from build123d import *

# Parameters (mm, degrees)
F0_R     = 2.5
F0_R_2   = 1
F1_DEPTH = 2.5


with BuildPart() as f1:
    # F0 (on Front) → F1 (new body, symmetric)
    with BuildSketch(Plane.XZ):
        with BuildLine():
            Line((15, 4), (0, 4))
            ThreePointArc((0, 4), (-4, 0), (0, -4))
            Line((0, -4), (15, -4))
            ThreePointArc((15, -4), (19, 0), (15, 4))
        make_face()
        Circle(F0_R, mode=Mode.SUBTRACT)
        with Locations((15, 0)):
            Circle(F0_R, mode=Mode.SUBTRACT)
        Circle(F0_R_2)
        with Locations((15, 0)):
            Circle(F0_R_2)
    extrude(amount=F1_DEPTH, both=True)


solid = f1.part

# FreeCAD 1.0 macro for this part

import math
import FreeCAD as App
import Part
import Sketcher

V = App.Vector
Q = App.Units.Quantity

doc = App.newDocument("Part")
body = doc.addObject("PartDesign::Body", "Body")
body.AllowCompound = True

sketch1 = body.newObject("Sketcher::SketchObject", "Sketch")
sketch1.AttachmentSupport = (doc.getObject("XZ_Plane"), [""])
sketch1.MapMode = "FlatFace"
sketch1.addGeometry([
    Part.LineSegment(V(15, 4, 0), V(0, 4, 0)),
    Part.ArcOfCircle(Part.Circle(V(0, 0, 0), V(0, 0, 1), 4), math.radians(90), math.radians(270)),
    Part.LineSegment(V(0, -4, 0), V(15, -4, 0)),
    Part.ArcOfCircle(Part.Circle(V(15, 0, 0), V(0, 0, 1), 4), math.radians(-90), math.radians(90)),
    Part.Circle(V(0, 0, 0), V(0, 0, 1), 2.5),
    Part.Circle(V(15, 0, 0), V(0, 0, 1), 2.5),
    Part.Circle(V(0, 0, 0), V(0, 0, 1), 1),
    Part.Circle(V(15, 0, 0), V(0, 0, 1), 1),
], False)
sketch1.addConstraint([
    Sketcher.Constraint("Tangent", 0, 2, 1, 1),
    Sketcher.Constraint("Tangent", 1, 2, 2, 1),
    Sketcher.Constraint("Tangent", 2, 2, 3, 1),
    Sketcher.Constraint("Tangent", 3, 2, 0, 1),
    Sketcher.Constraint("Horizontal", 0),
    Sketcher.Constraint("Horizontal", 2),
    Sketcher.Constraint("Coincident", 1, 3, -1, 1),
    Sketcher.Constraint("Coincident", 4, 3, -1, 1),
    Sketcher.Constraint("Coincident", 6, 3, -1, 1),
    Sketcher.Constraint("Coincident", 5, 3, 3, 3),
    Sketcher.Constraint("Coincident", 7, 3, 3, 3),
    Sketcher.Constraint("Equal", 4, 5),
    Sketcher.Constraint("Equal", 6, 7),
    Sketcher.Constraint("Diameter", 4, Q("5 mm")),
    Sketcher.Constraint("Diameter", 6, Q("2 mm")),
    Sketcher.Constraint("Radius", 1, Q("4 mm")),
    Sketcher.Constraint("DistanceX", 0, 2, 0, 1, Q("15 mm")),
])
pad1 = body.newObject("PartDesign::Pad", "Pad")
pad1.Profile = sketch1
pad1.Length = 5
pad1.Midplane = True

doc.recompute()
